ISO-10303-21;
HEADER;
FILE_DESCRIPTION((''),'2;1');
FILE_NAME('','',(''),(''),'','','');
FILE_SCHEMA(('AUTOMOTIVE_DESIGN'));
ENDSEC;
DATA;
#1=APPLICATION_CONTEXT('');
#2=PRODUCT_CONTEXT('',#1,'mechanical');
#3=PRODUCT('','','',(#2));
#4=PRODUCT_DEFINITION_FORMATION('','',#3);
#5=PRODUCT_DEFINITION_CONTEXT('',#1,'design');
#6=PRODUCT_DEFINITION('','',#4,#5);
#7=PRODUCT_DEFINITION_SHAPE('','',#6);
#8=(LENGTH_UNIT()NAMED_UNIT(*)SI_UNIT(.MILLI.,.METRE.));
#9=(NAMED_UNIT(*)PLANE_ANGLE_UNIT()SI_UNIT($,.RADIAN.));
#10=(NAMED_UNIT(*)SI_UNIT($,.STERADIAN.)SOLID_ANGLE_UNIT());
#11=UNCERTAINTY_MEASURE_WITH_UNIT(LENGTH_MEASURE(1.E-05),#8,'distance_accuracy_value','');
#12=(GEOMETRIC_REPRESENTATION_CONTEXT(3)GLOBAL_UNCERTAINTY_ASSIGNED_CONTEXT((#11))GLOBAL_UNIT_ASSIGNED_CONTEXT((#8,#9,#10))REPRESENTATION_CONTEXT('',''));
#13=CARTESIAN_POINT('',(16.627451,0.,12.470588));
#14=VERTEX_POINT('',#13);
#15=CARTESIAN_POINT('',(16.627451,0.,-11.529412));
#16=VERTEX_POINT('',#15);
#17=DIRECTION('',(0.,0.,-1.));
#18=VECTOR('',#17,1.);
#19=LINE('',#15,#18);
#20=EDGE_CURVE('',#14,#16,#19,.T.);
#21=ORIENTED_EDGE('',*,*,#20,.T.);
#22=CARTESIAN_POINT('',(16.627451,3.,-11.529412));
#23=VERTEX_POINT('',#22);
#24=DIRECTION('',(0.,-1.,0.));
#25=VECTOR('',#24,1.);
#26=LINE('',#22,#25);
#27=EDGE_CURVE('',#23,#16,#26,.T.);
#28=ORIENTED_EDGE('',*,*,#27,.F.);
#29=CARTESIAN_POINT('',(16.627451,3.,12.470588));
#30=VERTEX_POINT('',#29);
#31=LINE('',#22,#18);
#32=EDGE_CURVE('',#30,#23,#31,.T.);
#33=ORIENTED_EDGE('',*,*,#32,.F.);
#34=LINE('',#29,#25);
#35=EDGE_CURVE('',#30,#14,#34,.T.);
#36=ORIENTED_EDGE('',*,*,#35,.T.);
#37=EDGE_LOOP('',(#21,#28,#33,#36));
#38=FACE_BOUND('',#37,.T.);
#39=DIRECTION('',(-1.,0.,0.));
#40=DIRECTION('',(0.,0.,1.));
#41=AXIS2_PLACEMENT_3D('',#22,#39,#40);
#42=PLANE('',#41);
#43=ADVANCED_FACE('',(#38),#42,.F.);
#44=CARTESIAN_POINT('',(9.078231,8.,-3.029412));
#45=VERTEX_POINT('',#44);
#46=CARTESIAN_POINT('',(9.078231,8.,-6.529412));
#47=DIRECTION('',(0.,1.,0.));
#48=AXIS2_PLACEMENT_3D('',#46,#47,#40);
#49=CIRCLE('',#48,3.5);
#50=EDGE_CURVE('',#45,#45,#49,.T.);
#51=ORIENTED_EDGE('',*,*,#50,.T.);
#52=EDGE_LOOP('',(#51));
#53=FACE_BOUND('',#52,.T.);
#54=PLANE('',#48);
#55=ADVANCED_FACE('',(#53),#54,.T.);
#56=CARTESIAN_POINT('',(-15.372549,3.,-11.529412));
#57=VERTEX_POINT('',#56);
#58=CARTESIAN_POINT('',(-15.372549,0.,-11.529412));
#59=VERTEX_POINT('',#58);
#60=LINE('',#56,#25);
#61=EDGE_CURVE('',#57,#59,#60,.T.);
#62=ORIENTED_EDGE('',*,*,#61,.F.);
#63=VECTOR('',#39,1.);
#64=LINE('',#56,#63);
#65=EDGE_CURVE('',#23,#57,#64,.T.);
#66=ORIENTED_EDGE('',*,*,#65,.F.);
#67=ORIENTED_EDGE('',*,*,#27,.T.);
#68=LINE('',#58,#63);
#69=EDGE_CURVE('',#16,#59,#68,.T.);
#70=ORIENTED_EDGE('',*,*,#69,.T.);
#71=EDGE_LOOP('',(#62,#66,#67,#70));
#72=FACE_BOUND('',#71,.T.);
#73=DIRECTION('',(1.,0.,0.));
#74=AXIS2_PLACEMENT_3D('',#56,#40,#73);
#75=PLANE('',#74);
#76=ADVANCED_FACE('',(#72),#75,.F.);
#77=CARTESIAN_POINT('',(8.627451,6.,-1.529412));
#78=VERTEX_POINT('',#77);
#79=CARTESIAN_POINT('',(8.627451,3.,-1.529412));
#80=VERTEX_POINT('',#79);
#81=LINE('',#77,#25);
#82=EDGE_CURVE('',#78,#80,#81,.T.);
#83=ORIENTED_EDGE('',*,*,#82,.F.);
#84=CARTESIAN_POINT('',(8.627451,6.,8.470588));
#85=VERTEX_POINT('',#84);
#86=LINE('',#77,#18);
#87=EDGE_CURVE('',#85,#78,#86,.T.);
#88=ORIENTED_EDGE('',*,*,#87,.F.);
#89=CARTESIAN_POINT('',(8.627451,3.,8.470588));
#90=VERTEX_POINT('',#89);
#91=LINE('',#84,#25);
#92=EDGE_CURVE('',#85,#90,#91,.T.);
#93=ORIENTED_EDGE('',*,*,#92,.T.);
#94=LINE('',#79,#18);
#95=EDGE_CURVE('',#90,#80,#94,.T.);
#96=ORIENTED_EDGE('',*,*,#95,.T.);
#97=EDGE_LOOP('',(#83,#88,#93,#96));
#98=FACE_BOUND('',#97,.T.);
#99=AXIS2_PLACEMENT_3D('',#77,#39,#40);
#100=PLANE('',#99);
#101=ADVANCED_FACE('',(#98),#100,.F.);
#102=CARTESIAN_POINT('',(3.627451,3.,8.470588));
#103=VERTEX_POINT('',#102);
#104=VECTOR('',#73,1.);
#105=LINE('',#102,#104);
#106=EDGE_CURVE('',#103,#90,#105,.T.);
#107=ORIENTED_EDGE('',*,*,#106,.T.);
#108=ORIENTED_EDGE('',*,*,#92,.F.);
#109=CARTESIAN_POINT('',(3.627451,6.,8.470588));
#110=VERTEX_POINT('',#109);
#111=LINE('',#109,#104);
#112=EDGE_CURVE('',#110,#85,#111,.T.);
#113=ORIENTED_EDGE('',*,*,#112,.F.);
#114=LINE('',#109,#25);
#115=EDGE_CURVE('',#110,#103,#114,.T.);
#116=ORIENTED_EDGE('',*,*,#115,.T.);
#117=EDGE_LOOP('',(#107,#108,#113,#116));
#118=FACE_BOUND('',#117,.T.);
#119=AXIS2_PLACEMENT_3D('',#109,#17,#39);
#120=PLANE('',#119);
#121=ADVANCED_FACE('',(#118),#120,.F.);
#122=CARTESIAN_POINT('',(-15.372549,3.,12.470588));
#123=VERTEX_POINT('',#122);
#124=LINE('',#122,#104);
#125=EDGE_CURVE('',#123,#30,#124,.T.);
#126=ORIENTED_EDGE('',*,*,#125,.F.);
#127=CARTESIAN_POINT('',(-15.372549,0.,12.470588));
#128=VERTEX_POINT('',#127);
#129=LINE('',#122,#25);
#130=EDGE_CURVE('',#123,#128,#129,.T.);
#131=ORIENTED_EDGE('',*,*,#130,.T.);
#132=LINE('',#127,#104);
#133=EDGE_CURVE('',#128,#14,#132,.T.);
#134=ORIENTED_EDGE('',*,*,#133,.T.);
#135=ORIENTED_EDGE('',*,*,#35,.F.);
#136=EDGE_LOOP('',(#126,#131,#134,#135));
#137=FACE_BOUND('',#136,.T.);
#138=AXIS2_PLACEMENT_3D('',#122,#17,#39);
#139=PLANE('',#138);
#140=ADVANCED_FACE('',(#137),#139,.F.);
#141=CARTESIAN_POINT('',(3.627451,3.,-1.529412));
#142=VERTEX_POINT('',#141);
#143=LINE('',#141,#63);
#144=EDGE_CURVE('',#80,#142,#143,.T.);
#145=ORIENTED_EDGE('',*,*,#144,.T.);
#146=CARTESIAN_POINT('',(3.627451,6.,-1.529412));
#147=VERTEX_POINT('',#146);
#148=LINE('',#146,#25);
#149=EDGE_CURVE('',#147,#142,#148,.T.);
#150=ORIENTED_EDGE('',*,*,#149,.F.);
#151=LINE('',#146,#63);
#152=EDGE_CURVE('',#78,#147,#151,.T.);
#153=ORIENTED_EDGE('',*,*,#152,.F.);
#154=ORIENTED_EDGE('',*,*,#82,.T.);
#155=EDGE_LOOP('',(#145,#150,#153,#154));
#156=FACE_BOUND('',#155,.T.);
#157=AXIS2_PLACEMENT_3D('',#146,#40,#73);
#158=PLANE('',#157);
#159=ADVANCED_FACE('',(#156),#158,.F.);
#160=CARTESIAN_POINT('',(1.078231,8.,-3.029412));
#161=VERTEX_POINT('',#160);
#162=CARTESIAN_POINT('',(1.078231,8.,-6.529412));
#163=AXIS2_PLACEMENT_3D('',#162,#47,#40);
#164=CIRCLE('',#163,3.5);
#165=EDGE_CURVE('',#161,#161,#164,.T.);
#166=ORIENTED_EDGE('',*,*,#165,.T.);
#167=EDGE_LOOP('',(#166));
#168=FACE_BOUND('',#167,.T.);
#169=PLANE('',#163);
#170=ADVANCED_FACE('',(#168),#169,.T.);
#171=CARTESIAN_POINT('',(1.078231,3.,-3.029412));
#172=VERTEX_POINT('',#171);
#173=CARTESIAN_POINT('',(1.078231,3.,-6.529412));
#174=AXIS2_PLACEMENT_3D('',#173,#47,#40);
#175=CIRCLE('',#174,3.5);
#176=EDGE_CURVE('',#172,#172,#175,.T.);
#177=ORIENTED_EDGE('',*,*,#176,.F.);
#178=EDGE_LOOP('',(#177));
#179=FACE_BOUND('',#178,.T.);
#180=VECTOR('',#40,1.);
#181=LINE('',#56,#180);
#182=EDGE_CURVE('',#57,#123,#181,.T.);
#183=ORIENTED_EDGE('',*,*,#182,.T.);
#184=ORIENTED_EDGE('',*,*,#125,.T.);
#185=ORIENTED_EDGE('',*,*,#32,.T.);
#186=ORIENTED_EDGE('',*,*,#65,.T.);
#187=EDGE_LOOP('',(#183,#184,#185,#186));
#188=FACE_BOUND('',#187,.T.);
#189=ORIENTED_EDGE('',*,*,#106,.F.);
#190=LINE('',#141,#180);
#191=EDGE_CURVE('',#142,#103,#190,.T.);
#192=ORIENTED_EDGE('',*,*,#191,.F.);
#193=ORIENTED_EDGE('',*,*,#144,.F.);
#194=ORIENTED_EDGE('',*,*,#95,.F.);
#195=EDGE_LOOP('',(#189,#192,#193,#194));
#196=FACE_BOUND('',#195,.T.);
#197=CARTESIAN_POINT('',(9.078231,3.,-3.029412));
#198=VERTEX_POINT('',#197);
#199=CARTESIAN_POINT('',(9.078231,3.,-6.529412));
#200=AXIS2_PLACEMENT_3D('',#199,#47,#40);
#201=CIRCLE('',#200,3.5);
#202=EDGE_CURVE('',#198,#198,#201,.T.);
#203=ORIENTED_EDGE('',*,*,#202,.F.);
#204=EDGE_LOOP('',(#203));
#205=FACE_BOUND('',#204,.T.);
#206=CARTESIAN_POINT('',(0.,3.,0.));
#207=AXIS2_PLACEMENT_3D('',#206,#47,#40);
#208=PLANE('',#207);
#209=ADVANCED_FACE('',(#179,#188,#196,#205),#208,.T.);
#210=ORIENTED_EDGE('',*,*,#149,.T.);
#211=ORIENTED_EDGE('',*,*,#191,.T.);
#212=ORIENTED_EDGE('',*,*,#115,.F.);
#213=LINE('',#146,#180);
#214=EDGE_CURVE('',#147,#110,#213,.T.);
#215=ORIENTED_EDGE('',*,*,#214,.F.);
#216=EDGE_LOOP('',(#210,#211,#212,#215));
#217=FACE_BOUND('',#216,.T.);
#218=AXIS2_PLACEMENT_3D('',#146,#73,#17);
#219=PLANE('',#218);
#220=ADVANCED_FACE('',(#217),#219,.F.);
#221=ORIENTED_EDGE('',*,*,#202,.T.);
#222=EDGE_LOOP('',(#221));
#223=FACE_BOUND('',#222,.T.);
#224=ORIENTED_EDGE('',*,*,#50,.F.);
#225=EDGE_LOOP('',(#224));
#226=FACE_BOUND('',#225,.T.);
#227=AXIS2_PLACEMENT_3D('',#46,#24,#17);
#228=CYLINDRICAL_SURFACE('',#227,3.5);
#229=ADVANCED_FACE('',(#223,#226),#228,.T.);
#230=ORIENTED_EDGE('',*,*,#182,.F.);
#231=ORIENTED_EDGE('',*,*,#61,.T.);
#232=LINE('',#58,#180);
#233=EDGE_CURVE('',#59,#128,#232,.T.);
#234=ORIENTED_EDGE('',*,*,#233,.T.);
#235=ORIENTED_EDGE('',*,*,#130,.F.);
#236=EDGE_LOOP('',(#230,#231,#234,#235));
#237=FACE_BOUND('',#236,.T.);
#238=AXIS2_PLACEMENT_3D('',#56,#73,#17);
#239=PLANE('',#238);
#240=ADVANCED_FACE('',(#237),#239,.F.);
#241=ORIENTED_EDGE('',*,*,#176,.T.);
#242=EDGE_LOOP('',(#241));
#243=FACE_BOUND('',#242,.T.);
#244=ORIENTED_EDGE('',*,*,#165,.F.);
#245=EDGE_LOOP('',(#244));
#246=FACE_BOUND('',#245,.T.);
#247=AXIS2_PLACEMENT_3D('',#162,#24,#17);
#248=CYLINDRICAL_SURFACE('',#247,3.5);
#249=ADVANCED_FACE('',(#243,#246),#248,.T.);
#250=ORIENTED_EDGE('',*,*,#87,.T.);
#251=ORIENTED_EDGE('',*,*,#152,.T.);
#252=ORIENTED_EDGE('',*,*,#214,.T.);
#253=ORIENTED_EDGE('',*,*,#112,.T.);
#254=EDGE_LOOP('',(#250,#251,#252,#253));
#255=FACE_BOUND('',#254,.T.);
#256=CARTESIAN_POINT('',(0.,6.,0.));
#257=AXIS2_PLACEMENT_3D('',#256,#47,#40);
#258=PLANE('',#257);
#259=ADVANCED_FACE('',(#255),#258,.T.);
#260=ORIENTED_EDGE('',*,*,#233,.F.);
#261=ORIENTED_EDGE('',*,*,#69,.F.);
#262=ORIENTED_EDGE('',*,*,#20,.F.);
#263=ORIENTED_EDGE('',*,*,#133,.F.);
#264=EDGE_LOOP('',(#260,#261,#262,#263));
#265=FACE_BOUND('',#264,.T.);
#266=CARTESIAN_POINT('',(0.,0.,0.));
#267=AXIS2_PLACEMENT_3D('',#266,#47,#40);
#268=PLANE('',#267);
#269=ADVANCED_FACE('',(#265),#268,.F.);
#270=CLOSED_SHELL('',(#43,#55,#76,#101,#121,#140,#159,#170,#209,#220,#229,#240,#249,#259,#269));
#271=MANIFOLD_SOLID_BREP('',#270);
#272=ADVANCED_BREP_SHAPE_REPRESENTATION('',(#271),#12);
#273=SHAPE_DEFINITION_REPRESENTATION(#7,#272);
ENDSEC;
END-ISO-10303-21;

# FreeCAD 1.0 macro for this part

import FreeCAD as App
import Part
import Sketcher


def add_polygon(sketch, points):
    """Adds a closed chain of lines whose ends are joined by coincident constraints."""
    first, n = sketch.GeometryCount, len(points)
    for a, b in zip(points, points[1:] + points[:1]):
        sketch.addGeometry(Part.LineSegment(App.Vector(*a, 0), App.Vector(*b, 0)), False)
    for i in range(n):
        sketch.addConstraint(Sketcher.Constraint("Coincident", first + i, 2, first + (i + 1) % n, 1))

doc = App.newDocument("Part")
body = doc.addObject("PartDesign::Body", "Body")

# Sketch on XZ plane
sketch1 = body.newObject("Sketcher::SketchObject", "Sketch")
sketch1.AttachmentSupport = (doc.getObject("XZ_Plane"), [""])
sketch1.MapMode = "FlatFace"
add_polygon(sketch1, [(-15, -12), (-15, 12), (17, 12), (17, -12)])  # lines 0-3
sketch1.addConstraint(Sketcher.Constraint("Vertical", 0))
sketch1.addConstraint(Sketcher.Constraint("Horizontal", 1))
sketch1.addConstraint(Sketcher.Constraint("Vertical", 2))
sketch1.addConstraint(Sketcher.Constraint("Horizontal", 3))
sketch1.addConstraint(Sketcher.Constraint("DistanceX", 1, 1, 1, 2, 32.0))
sketch1.addConstraint(Sketcher.Constraint("DistanceY", 0, 1, 0, 2, 24.0))
sketch1.addConstraint(Sketcher.Constraint("DistanceX", 0, 2, -1, 1, 15.372549))
sketch1.addConstraint(Sketcher.Constraint("DistanceY", -1, 1, 0, 2, 12.470588))
pad1 = body.newObject("PartDesign::Pad", "Pad")
pad1.Profile = sketch1
pad1.Length = 3
pad1.Reversed = True

# Sketch on XZ plane
sketch2 = body.newObject("Sketcher::SketchObject", "Sketch001")
sketch2.AttachmentSupport = (doc.getObject("XZ_Plane"), [""])
sketch2.MapMode = "FlatFace"
sketch2.AttachmentOffset = App.Placement(App.Vector(0, 0, -3), App.Rotation())
sketch2.addGeometry(Part.Circle(App.Vector(1.1, -6.5, 0), App.Vector(0, 0, 1), 3.5), False)
sketch2.addGeometry(Part.Circle(App.Vector(9.1, -6.5, 0), App.Vector(0, 0, 1), 3.5), False)
sketch2.addConstraint(Sketcher.Constraint("Equal", 0, 1))
sketch2.addConstraint(Sketcher.Constraint("Horizontal", 0, 3, 1, 3))
sketch2.addConstraint(Sketcher.Constraint("Diameter", 0, 7.0))
sketch2.addConstraint(Sketcher.Constraint("DistanceX", 0, 3, 1, 3, 8.0))
sketch2.addConstraint(Sketcher.Constraint("DistanceX", -1, 1, 0, 3, 1.078231))
sketch2.addConstraint(Sketcher.Constraint("DistanceY", 0, 3, -1, 1, 6.529412))
pad2 = body.newObject("PartDesign::Pad", "Pad001")
pad2.Profile = sketch2
pad2.Length = 5
pad2.Reversed = True

# Sketch on XZ plane
sketch3 = body.newObject("Sketcher::SketchObject", "Sketch002")
sketch3.AttachmentSupport = (doc.getObject("XZ_Plane"), [""])
sketch3.MapMode = "FlatFace"
sketch3.AttachmentOffset = App.Placement(App.Vector(0, 0, -3), App.Rotation())
add_polygon(sketch3, [(4, -2), (4, 8), (9, 8), (9, -2)])  # lines 0-3
sketch3.addConstraint(Sketcher.Constraint("Vertical", 0))
sketch3.addConstraint(Sketcher.Constraint("Horizontal", 1))
sketch3.addConstraint(Sketcher.Constraint("Vertical", 2))
sketch3.addConstraint(Sketcher.Constraint("Horizontal", 3))
sketch3.addConstraint(Sketcher.Constraint("DistanceX", 1, 1, 1, 2, 5.0))
sketch3.addConstraint(Sketcher.Constraint("DistanceY", 0, 1, 0, 2, 10.0))
sketch3.addConstraint(Sketcher.Constraint("DistanceX", -1, 1, 0, 2, 3.627451))
sketch3.addConstraint(Sketcher.Constraint("DistanceY", -1, 1, 0, 2, 8.470588))
pad3 = body.newObject("PartDesign::Pad", "Pad002")
pad3.Profile = sketch3
pad3.Length = 3
pad3.Reversed = True

doc.recompute()
